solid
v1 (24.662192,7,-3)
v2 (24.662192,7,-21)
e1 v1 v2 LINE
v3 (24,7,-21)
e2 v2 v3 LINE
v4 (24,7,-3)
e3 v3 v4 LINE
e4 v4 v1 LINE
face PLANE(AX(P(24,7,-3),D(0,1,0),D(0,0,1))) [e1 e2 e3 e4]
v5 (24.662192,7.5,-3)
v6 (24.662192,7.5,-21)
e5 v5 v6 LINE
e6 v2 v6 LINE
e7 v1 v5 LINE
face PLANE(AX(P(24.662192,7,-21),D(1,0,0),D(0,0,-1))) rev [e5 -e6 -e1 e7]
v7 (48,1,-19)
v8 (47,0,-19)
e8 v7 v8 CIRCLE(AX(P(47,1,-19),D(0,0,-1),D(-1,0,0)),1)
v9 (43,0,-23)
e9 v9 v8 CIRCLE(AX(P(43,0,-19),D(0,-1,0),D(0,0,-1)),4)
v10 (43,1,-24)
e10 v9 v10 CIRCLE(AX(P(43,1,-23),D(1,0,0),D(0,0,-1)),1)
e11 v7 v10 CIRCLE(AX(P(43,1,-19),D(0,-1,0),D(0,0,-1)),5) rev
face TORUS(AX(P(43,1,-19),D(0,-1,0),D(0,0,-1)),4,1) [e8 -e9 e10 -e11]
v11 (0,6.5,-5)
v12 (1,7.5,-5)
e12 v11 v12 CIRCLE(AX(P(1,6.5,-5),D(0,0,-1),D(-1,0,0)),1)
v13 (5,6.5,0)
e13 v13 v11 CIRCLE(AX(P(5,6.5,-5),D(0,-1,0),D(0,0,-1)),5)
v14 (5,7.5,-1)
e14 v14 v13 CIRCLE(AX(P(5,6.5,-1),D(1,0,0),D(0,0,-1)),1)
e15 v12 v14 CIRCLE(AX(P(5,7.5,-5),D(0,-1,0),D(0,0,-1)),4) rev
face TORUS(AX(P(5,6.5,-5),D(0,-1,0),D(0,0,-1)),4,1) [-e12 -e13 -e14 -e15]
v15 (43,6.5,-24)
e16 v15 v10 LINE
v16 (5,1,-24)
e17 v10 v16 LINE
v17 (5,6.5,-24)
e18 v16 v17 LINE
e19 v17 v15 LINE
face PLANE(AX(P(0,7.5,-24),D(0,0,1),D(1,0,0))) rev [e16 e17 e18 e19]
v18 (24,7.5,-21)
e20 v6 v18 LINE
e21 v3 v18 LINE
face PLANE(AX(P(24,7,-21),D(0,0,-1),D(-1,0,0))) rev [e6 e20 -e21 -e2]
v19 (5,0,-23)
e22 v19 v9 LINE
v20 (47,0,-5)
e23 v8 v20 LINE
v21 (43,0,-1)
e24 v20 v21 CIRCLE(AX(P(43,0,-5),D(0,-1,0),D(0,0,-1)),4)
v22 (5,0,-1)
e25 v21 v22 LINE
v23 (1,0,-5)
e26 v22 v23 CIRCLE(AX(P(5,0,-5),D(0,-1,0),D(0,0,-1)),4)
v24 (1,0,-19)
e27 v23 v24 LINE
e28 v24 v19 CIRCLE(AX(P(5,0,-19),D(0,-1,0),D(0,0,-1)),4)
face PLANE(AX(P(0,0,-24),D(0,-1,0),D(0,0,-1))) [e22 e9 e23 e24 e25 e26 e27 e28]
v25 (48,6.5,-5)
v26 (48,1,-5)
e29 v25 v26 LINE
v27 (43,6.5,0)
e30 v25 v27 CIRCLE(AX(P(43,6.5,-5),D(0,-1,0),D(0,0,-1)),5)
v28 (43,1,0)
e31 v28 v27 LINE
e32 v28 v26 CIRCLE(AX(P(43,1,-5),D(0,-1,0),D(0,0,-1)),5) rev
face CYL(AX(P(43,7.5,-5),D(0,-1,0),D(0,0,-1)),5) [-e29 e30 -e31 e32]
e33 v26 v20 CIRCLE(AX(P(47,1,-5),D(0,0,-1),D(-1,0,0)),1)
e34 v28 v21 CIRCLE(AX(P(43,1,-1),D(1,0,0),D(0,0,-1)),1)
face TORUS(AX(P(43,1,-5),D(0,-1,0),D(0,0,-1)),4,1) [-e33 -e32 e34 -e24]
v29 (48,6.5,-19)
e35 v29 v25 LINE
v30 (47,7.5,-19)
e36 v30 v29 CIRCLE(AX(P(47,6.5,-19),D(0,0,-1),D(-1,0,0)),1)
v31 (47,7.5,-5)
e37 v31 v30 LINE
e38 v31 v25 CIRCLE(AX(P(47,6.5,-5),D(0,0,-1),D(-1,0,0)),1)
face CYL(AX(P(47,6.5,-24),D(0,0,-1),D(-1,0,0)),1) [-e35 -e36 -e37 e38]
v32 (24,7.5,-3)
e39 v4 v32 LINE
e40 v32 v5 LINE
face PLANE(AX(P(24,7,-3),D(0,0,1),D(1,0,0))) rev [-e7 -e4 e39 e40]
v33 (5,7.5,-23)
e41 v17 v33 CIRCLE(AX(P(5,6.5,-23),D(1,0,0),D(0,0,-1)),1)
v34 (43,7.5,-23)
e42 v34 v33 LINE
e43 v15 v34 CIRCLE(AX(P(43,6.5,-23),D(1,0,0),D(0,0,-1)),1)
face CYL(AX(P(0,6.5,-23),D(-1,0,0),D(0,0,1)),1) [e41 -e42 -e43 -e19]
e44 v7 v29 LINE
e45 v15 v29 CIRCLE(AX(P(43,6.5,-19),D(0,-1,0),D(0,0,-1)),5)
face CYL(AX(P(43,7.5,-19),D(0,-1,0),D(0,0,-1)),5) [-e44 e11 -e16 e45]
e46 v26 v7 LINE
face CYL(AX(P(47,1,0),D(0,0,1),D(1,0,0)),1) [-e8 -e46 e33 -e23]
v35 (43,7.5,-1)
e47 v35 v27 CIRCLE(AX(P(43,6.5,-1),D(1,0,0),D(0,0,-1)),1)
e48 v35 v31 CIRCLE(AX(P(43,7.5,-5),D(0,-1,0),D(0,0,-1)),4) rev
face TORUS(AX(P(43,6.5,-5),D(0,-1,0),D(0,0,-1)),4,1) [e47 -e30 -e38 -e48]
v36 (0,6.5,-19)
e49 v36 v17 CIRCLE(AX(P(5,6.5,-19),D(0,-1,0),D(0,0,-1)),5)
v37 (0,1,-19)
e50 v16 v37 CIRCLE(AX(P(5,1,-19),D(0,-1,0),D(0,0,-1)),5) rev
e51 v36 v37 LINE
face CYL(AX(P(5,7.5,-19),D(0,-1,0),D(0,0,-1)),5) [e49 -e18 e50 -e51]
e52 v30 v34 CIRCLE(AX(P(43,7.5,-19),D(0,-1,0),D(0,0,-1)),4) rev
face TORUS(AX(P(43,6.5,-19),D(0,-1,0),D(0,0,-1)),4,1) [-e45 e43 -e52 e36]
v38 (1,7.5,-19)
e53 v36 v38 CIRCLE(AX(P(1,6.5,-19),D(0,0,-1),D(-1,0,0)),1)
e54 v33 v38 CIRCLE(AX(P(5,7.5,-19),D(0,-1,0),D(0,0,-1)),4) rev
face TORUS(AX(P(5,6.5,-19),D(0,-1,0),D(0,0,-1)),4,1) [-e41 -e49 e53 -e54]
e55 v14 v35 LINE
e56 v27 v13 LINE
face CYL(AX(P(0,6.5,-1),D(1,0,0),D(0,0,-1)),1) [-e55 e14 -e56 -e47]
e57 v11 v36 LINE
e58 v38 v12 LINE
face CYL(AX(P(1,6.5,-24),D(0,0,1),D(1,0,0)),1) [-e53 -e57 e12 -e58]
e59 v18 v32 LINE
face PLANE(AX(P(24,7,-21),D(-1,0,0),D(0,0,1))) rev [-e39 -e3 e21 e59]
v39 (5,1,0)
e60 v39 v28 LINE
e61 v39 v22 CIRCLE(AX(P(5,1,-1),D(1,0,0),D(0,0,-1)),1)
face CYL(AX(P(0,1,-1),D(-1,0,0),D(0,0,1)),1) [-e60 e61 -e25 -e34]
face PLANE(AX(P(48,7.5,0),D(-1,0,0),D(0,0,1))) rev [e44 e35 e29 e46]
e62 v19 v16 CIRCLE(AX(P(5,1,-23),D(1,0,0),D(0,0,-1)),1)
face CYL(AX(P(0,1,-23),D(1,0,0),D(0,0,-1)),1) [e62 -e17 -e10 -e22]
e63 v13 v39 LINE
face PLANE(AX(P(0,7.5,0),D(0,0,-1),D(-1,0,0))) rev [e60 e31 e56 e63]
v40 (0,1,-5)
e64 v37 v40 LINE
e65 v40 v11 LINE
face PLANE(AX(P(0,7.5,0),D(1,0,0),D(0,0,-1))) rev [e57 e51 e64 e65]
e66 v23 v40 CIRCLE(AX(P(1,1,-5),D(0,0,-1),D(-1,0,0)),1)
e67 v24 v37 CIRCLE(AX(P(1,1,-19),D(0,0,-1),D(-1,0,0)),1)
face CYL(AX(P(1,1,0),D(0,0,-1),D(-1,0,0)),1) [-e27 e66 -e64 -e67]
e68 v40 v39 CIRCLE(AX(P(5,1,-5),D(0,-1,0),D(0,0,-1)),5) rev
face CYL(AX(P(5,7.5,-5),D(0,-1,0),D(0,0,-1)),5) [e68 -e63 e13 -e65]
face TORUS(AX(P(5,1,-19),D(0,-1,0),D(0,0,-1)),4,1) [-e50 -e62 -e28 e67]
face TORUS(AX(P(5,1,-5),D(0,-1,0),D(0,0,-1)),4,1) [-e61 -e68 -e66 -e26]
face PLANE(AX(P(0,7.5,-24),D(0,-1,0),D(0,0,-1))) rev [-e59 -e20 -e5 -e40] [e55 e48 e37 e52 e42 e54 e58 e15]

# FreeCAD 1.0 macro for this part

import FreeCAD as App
import Part
import Sketcher


def edges_at(feature, points):
    """Names of the edges that pass closest to the given points."""
    edges = feature.Shape.Edges
    near = lambda p: min(range(len(edges)), key=lambda i: edges[i].distToShape(Part.Vertex(*p))[0])
    return sorted({f"Edge{near(p) + 1}" for p in points})

doc = App.newDocument("Part")
params = doc.addObject("Spreadsheet::Sheet", "Params")
for row, (alias, value) in enumerate([
    ("sketch1_width", "48 mm"),
    ("sketch1_height", "24 mm"),
    ("pad1_length", "7.5 mm"),
    ("fillet_radius", "5 mm"),
    ("fillet2_radius", "1 mm"),
    ("fillet3_radius", "1 mm"),
    ("sketch2_height", "18 mm"),
    ("pocket1_length", "0.5 mm"),
], start=1):
    params.set(f"A{row}", alias)
    params.set(f"B{row}", "=" + value)
    params.setAlias(f"B{row}", alias)

body = doc.addObject("PartDesign::Body", "Body")

# Sketch on XZ plane
sketch1 = body.newObject("Sketcher::SketchObject", "Sketch")
sketch1.AttachmentSupport = (doc.getObject("XZ_Plane"), [""])
sketch1.MapMode = "FlatFace"
sketch1.addGeometry(Part.LineSegment(App.Vector(0, -24, 0), App.Vector(0, 0, 0)), False)
sketch1.addGeometry(Part.LineSegment(App.Vector(0, 0, 0), App.Vector(48, 0, 0)), False)
sketch1.addGeometry(Part.LineSegment(App.Vector(48, 0, 0), App.Vector(48, -24, 0)), False)
sketch1.addGeometry(Part.LineSegment(App.Vector(48, -24, 0), App.Vector(0, -24, 0)), False)
sketch1.addConstraint(Sketcher.Constraint("Coincident", 0, 2, 1, 1))
sketch1.addConstraint(Sketcher.Constraint("Coincident", 1, 2, 2, 1))
sketch1.addConstraint(Sketcher.Constraint("Coincident", 2, 2, 3, 1))
sketch1.addConstraint(Sketcher.Constraint("Coincident", 3, 2, 0, 1))
sketch1.addConstraint(Sketcher.Constraint("Vertical", 0))
sketch1.addConstraint(Sketcher.Constraint("Horizontal", 1))
sketch1.addConstraint(Sketcher.Constraint("Vertical", 2))
sketch1.addConstraint(Sketcher.Constraint("Horizontal", 3))
sketch1.addConstraint(Sketcher.Constraint("Coincident", 0, 2, -1, 1))
sketch1.addConstraint(Sketcher.Constraint("DistanceX", 1, 1, 1, 2, 48.0))
sketch1.addConstraint(Sketcher.Constraint("DistanceY", 0, 1, 0, 2, 24.0))
sketch1.setExpression("Constraints[9]", "Params.sketch1_width")
sketch1.setExpression("Constraints[10]", "Params.sketch1_height")
pad1 = body.newObject("PartDesign::Pad", "Pad")
pad1.Profile = sketch1
pad1.setExpression("Length", "Params.pad1_length")
pad1.Reversed = True
doc.recompute()

fillet = body.newObject("PartDesign::Fillet", "Fillet")
fillet.Base = (pad1, edges_at(pad1, [
    (0, 3.75, -24),
    (48, 3.75, -24),
    (48, 3.75, 0),
    (0, 3.75, 0),
]))
fillet.setExpression("Radius", "Params.fillet_radius")
doc.recompute()

fillet2 = body.newObject("PartDesign::Fillet", "Fillet001")
fillet2.Base = (fillet, edges_at(fillet, [
    (48, 7.5, -12),
    (24, 7.5, 0),
    (0, 7.5, -12),
    (24, 7.5, -24),
    (1.464, 7.5, -22.536),
    (1.464, 7.5, -1.464),
    (46.536, 7.5, -22.536),
    (46.536, 7.5, -1.464),
]))
fillet2.setExpression("Radius", "Params.fillet2_radius")
doc.recompute()

fillet3 = body.newObject("PartDesign::Fillet", "Fillet002")
fillet3.Base = (fillet2, edges_at(fillet2, [
    (48, 0, -12),
    (0, 0, -12),
    (24, 0, -24),
    (24, 0, 0),
    (1.464, 0, -22.536),
    (1.464, 0, -1.464),
    (46.536, 0, -22.536),
    (46.536, 0, -1.464),
]))
fillet3.setExpression("Radius", "Params.fillet3_radius")

# Sketch on XZ plane
sketch2 = body.newObject("Sketcher::SketchObject", "Sketch001")
sketch2.AttachmentSupport = (doc.getObject("XZ_Plane"), [""])
sketch2.MapMode = "FlatFace"
sketch2.AttachmentOffset = App.Placement(App.Vector(0, 0, -7.5), App.Rotation())
sketch2.addGeometry(Part.LineSegment(App.Vector(24, -21, 0), App.Vector(24, -3, 0)), False)
sketch2.addGeometry(Part.LineSegment(App.Vector(24, -3, 0), App.Vector(24.7, -3, 0)), False)
sketch2.addGeometry(Part.LineSegment(App.Vector(24.7, -3, 0), App.Vector(24.7, -21, 0)), False)
sketch2.addGeometry(Part.LineSegment(App.Vector(24.7, -21, 0), App.Vector(24, -21, 0)), False)
sketch2.addConstraint(Sketcher.Constraint("Coincident", 0, 2, 1, 1))
sketch2.addConstraint(Sketcher.Constraint("Coincident", 1, 2, 2, 1))
sketch2.addConstraint(Sketcher.Constraint("Coincident", 2, 2, 3, 1))
sketch2.addConstraint(Sketcher.Constraint("Coincident", 3, 2, 0, 1))
sketch2.addConstraint(Sketcher.Constraint("Vertical", 0))
sketch2.addConstraint(Sketcher.Constraint("Horizontal", 1))
sketch2.addConstraint(Sketcher.Constraint("Vertical", 2))
sketch2.addConstraint(Sketcher.Constraint("Horizontal", 3))
sketch2.addConstraint(Sketcher.Constraint("DistanceY", 0, 1, 0, 2, 18.0))
sketch2.addConstraint(Sketcher.Constraint("DistanceX", -1, 1, 0, 2, 24.0))
sketch2.addConstraint(Sketcher.Constraint("DistanceY", 0, 2, -1, 1, 3.0))
sketch2.addConstraint(Sketcher.Constraint("DistanceX", 1, 1, 1, 2, 0.662192))
sketch2.setExpression("Constraints[8]", "Params.sketch2_height")
pocket1 = body.newObject("PartDesign::Pocket", "Pocket")
pocket1.Profile = sketch2
pocket1.setExpression("Length", "Params.pocket1_length")
pocket1.Reversed = True

doc.recompute()
